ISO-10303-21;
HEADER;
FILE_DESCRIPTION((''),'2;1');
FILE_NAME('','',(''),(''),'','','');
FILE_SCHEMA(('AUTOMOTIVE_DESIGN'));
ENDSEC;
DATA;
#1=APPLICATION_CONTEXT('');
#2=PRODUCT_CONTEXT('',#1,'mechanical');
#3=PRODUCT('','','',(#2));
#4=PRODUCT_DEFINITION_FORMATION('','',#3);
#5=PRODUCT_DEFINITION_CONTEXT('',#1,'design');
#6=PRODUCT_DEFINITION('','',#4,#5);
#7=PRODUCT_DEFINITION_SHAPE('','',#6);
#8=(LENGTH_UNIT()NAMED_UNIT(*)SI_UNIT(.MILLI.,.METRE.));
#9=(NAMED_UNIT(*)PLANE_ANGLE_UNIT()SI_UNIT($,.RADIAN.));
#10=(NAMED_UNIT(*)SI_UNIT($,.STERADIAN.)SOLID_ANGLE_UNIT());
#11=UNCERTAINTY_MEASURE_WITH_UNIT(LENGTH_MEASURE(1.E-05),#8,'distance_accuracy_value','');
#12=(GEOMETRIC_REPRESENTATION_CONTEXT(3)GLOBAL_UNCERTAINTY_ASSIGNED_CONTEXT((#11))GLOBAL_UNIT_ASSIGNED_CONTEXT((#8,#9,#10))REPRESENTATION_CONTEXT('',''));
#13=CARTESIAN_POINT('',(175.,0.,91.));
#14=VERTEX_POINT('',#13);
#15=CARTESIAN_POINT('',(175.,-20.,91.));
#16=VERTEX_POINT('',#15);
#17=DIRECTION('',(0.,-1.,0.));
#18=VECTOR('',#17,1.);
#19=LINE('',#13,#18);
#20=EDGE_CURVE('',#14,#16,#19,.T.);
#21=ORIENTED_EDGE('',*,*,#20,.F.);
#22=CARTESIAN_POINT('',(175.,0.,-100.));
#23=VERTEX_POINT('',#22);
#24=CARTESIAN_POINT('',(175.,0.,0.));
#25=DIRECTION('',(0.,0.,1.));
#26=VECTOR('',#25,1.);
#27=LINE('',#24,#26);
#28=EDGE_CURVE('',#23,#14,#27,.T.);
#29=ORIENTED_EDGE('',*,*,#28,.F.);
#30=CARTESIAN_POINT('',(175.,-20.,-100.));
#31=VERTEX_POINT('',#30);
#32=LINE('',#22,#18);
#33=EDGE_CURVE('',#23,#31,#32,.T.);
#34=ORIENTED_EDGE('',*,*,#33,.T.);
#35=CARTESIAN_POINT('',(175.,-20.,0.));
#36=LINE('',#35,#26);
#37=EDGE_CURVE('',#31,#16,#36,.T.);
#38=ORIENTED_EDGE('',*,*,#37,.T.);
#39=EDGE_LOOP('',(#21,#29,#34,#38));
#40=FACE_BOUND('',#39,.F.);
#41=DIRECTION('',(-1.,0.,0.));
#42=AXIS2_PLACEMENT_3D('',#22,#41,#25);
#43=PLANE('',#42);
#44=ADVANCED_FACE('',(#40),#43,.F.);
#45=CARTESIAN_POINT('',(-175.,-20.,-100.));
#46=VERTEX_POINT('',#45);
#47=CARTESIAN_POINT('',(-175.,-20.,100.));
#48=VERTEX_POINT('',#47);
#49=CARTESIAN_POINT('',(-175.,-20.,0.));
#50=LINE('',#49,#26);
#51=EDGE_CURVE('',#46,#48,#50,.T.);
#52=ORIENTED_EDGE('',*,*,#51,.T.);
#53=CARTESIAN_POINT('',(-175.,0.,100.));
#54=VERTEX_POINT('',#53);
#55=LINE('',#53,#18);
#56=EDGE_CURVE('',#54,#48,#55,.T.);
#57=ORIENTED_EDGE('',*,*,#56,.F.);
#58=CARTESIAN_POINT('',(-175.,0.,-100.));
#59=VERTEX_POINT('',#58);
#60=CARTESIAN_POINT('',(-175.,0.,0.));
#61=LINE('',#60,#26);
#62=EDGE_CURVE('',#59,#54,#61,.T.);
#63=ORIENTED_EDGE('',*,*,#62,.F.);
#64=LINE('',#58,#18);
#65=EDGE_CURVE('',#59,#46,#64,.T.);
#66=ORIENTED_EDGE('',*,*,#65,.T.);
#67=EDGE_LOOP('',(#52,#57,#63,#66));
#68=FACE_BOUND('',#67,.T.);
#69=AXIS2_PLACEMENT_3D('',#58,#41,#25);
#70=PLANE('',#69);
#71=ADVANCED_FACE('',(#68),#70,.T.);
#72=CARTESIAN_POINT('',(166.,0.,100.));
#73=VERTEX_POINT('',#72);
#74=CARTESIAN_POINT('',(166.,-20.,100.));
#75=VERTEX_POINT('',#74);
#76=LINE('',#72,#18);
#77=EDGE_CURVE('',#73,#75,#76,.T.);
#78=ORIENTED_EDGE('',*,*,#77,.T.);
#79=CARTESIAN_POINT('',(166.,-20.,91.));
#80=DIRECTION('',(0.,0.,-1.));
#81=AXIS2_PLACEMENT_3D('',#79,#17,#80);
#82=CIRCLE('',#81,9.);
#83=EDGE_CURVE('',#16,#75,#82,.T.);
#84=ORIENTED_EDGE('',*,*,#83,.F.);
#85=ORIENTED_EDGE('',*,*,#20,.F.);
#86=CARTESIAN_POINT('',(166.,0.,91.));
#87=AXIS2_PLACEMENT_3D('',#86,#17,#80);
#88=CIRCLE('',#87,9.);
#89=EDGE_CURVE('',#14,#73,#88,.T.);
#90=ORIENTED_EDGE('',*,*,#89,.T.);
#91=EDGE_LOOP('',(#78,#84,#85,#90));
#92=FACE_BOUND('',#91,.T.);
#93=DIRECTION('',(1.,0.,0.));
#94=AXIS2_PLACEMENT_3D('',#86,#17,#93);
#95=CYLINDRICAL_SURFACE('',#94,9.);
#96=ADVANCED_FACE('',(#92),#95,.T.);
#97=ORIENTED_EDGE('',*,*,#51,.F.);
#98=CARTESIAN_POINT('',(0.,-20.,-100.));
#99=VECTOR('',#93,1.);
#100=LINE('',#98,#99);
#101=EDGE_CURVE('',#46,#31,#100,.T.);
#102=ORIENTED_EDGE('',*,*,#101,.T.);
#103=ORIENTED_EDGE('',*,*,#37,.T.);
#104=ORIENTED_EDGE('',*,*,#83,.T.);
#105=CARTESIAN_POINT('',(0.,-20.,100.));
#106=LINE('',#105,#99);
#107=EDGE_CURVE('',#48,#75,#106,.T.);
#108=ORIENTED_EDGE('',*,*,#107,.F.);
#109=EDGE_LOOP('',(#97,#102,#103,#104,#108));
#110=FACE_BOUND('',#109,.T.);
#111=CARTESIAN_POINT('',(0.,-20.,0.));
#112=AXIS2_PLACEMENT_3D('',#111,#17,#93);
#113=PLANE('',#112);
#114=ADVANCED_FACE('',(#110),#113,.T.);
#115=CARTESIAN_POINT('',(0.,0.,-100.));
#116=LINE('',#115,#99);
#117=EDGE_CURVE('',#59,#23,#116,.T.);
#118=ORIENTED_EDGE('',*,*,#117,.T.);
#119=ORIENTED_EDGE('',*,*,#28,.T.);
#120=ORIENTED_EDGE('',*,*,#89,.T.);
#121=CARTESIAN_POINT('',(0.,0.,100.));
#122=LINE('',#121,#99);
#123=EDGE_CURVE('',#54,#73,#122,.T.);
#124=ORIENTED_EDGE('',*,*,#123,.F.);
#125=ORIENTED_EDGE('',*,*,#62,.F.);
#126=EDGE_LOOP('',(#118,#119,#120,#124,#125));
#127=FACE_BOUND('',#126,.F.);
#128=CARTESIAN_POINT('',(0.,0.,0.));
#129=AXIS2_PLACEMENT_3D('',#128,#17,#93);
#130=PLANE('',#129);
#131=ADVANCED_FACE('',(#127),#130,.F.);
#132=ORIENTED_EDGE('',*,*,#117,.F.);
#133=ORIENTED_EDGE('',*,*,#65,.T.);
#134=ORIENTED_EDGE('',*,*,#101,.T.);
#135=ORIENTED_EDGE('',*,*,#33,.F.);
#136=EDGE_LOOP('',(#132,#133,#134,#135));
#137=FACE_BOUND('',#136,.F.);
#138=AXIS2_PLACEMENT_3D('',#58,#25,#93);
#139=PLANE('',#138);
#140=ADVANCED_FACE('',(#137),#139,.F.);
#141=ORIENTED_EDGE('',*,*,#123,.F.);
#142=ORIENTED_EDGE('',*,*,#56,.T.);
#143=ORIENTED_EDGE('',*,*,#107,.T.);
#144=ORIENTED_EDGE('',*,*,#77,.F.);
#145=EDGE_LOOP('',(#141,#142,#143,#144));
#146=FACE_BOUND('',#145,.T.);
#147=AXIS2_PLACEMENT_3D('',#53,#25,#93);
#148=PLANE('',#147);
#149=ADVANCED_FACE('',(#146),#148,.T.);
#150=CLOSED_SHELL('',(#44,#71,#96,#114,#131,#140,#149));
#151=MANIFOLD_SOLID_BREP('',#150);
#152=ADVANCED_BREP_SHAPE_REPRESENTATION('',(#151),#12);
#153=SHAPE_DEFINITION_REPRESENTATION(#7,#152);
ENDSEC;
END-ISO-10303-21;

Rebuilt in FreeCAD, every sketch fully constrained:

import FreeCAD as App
import Part
import Sketcher


def edges_at(feature, points):
    """Names of the edges that pass closest to the given points."""
    edges = feature.Shape.Edges
    near = lambda p: min(range(len(edges)), key=lambda i: edges[i].distToShape(Part.Vertex(*p))[0])
    return sorted({f"Edge{near(p) + 1}" for p in points})

doc = App.newDocument("Part")
body = doc.addObject("PartDesign::Body", "Body")

sketch1 = body.newObject("Sketcher::SketchObject", "Sketch")
sketch1.AttachmentSupport = (doc.getObject("XZ_Plane"), [""])
sketch1.MapMode = "FlatFace"
sketch1.addGeometry([
    Part.LineSegment(App.Vector(-175, 100, 0), App.Vector(-175, -100, 0)),
    Part.LineSegment(App.Vector(-175, -100, 0), App.Vector(175, -100, 0)),
    Part.LineSegment(App.Vector(175, -100, 0), App.Vector(175, 100, 0)),
    Part.LineSegment(App.Vector(175, 100, 0), App.Vector(-175, 100, 0)),
], False)
sketch1.addConstraint([
    Sketcher.Constraint("Coincident", 0, 2, 1, 1),
    Sketcher.Constraint("Coincident", 1, 2, 2, 1),
    Sketcher.Constraint("Coincident", 2, 2, 3, 1),
    Sketcher.Constraint("Coincident", 3, 2, 0, 1),
    Sketcher.Constraint("Vertical", 0),
    Sketcher.Constraint("Horizontal", 1),
    Sketcher.Constraint("Vertical", 2),
    Sketcher.Constraint("Horizontal", 3),
    Sketcher.Constraint("Symmetric", 0, 2, 2, 2, -1, 1),
    Sketcher.Constraint("DistanceX", 1, 1, 1, 2, 350.0),
    Sketcher.Constraint("DistanceY", 0, 2, 0, 1, 200.0),
])
pad1 = body.newObject("PartDesign::Pad", "Pad")
pad1.Profile = sketch1
pad1.Length = 20
doc.recompute()

fillet = body.newObject("PartDesign::Fillet", "Fillet")
fillet.Base = (pad1, edges_at(pad1, [(175, -10, 100)]))
fillet.Radius = 9

doc.recompute()
